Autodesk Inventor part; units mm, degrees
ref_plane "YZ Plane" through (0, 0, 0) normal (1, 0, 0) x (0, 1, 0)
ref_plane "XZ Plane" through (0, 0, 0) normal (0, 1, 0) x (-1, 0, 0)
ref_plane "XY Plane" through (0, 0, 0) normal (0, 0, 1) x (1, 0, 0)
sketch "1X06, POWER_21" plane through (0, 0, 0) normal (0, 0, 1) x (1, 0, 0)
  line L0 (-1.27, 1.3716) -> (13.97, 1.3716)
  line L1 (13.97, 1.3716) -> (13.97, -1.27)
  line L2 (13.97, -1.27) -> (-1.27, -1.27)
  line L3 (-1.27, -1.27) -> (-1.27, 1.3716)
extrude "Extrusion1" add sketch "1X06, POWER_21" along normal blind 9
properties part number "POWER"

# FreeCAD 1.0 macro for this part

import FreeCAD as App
import Part
import Sketcher
from FreeCAD import Vector
Q = App.Units.Quantity

doc = App.newDocument("Part")
body = doc.addObject("PartDesign::Body", "Body")

# Sketch on XY plane
sketch1 = body.newObject("Sketcher::SketchObject", "Sketch")
sketch1.AttachmentSupport = (doc.getObject("XY_Plane"), [""])
sketch1.MapMode = "FlatFace"
sketch1.addGeometry(Part.LineSegment(Vector(13.97, 1.3716, 0), Vector(-1.27, 1.3716, 0)), False)
sketch1.addGeometry(Part.LineSegment(Vector(-1.27, 1.3716, 0), Vector(-1.27, -1.27, 0)), False)
sketch1.addGeometry(Part.LineSegment(Vector(-1.27, -1.27, 0), Vector(13.97, -1.27, 0)), False)
sketch1.addGeometry(Part.LineSegment(Vector(13.97, -1.27, 0), Vector(13.97, 1.3716, 0)), False)
sketch1.addConstraint(Sketcher.Constraint("Coincident", 0, 2, 1, 1))
sketch1.addConstraint(Sketcher.Constraint("Coincident", 1, 2, 2, 1))
sketch1.addConstraint(Sketcher.Constraint("Coincident", 2, 2, 3, 1))
sketch1.addConstraint(Sketcher.Constraint("Coincident", 3, 2, 0, 1))
sketch1.addConstraint(Sketcher.Constraint("Horizontal", 0))
sketch1.addConstraint(Sketcher.Constraint("Vertical", 1))
sketch1.addConstraint(Sketcher.Constraint("Horizontal", 2))
sketch1.addConstraint(Sketcher.Constraint("Vertical", 3))
sketch1.addConstraint(Sketcher.Constraint("DistanceX", 0, 2, 0, 1, Q("0.6 in")))
sketch1.addConstraint(Sketcher.Constraint("DistanceY", 1, 2, 1, 1, Q("0.104 in")))
sketch1.addConstraint(Sketcher.Constraint("DistanceX", 0, 2, -1, 1, Q("0.05 in")))
sketch1.addConstraint(Sketcher.Constraint("DistanceY", 1, 2, -1, 1, Q("0.05 in")))
pad1 = body.newObject("PartDesign::Pad", "Pad")
pad1.Profile = sketch1
pad1.Length = 9

doc.recompute()
